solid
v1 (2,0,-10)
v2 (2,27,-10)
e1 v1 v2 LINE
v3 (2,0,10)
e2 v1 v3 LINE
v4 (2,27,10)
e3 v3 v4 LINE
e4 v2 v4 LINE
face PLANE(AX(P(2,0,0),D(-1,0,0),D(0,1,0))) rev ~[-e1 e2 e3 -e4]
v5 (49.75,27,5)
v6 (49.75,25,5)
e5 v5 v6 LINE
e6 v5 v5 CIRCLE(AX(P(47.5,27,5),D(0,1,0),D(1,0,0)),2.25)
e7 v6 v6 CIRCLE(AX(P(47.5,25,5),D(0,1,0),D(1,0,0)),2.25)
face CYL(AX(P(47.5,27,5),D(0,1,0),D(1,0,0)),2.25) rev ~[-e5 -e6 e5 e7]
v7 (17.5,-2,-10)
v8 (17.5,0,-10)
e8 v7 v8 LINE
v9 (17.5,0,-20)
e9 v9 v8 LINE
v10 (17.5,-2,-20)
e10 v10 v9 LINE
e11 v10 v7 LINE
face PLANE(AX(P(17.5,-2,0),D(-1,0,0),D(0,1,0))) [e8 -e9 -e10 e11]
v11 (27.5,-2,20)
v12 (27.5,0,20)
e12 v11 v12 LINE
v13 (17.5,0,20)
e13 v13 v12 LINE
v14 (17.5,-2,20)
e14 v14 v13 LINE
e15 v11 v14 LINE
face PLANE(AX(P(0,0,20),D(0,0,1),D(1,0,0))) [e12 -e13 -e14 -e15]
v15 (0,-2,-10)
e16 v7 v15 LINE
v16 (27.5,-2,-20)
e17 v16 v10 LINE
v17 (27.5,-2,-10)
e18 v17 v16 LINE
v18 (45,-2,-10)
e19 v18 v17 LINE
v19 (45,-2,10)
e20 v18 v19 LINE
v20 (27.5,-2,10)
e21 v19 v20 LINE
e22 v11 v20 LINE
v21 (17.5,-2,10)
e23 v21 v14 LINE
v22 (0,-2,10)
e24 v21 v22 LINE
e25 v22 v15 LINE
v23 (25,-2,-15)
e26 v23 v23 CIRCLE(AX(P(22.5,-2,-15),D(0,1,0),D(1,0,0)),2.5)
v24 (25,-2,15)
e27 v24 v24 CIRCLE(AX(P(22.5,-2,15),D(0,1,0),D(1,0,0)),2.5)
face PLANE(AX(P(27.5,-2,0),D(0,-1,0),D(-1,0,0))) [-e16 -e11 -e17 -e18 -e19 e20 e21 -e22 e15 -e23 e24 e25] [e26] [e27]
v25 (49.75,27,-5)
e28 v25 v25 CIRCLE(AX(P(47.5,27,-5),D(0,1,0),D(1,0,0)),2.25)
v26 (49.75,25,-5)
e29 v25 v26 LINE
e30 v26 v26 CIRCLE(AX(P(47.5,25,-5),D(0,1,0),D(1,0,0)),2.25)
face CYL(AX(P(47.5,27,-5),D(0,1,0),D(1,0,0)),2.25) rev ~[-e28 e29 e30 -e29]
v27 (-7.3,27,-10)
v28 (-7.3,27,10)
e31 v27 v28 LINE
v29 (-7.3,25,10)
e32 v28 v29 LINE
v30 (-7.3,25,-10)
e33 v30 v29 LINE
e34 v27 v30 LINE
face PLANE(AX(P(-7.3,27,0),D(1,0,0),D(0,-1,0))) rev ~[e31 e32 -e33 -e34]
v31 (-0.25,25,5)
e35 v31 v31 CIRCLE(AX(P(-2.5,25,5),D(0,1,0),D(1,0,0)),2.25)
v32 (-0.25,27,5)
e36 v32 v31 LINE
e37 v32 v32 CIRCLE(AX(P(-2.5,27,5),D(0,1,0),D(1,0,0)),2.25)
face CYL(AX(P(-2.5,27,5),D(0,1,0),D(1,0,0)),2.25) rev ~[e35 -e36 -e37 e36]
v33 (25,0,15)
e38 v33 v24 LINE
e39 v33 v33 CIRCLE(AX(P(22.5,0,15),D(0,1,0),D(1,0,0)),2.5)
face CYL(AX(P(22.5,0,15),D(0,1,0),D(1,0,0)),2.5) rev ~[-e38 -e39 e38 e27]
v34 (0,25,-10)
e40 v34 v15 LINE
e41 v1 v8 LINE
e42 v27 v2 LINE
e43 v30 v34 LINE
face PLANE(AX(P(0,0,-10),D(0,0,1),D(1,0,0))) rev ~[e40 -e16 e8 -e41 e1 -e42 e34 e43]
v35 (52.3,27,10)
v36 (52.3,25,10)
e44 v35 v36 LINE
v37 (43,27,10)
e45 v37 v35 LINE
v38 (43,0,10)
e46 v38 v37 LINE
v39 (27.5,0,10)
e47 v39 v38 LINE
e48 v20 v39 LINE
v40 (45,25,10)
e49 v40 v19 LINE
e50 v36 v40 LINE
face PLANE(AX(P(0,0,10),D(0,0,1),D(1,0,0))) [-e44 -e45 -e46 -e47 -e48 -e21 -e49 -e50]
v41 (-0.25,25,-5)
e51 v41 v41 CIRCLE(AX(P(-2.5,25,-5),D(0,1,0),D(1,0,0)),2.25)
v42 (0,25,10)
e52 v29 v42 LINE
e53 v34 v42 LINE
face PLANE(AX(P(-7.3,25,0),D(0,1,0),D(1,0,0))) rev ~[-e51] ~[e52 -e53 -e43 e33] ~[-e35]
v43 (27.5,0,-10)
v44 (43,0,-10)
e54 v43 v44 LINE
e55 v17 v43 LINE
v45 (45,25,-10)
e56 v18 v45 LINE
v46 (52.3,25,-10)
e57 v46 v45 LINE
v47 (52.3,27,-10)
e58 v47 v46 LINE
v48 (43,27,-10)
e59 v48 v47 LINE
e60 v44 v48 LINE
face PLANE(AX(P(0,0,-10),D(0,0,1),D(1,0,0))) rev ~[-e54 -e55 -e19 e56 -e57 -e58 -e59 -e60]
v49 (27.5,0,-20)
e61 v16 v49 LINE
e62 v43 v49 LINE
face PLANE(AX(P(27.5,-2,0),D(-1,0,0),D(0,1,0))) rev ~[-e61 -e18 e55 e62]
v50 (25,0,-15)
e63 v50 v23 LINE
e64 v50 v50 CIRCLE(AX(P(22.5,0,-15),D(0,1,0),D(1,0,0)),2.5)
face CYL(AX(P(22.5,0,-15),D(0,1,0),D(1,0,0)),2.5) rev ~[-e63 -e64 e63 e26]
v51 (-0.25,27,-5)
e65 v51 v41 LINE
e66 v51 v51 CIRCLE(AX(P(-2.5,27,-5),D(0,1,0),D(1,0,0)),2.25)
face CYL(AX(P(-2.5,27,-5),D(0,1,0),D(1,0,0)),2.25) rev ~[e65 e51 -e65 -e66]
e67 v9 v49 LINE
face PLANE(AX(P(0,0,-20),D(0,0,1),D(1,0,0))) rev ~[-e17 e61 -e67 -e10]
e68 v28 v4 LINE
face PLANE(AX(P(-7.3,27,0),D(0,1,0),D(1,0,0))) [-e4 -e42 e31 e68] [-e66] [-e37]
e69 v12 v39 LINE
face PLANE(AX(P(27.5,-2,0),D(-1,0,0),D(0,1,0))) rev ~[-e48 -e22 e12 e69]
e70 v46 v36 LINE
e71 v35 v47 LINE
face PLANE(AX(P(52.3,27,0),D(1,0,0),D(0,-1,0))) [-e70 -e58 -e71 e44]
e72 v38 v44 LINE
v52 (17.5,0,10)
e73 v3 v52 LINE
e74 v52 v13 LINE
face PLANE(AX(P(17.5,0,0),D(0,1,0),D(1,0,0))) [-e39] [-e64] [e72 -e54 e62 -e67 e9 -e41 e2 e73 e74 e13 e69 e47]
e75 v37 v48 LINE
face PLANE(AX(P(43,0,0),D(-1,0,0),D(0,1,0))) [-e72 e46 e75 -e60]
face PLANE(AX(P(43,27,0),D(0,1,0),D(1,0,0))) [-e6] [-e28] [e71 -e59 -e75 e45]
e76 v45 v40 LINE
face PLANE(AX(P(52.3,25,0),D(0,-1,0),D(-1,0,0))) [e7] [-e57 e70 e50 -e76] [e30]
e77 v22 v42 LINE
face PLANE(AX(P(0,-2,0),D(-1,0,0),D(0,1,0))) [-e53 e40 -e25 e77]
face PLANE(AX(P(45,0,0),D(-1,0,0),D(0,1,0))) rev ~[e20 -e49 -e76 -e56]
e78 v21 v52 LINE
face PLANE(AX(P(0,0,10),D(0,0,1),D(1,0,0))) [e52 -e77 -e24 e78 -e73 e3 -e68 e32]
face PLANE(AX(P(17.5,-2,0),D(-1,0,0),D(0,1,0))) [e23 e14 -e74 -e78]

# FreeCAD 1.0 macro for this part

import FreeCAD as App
import Part
import Sketcher

V = App.Vector
Q = App.Units.Quantity

doc = App.newDocument("Part")
body = doc.addObject("PartDesign::Body", "Body")
body.AllowCompound = True

# Sketch on XY plane
sketch1 = doc.addObject("Sketcher::SketchObject", "Sketch")
body.addObject(sketch1)
sketch1.AttachmentSupport = (doc.XY_Plane, [""])
sketch1.MapMode = "FlatFace"
sketch1.addGeometry(Part.LineSegment(V(17.5, 0, 0), V(2, 0, 0)), False)
sketch1.addGeometry(Part.LineSegment(V(2, 0, 0), V(2, 27, 0)), False)
sketch1.addGeometry(Part.LineSegment(V(2, 27, 0), V(-7.3, 27, 0)), False)
sketch1.addGeometry(Part.LineSegment(V(-7.3, 27, 0), V(-7.3, 25, 0)), False)
sketch1.addGeometry(Part.LineSegment(V(-7.3, 25, 0), V(0, 25, 0)), False)
sketch1.addGeometry(Part.LineSegment(V(0, 25, 0), V(0, -2, 0)), False)
sketch1.addGeometry(Part.LineSegment(V(0, -2, 0), V(17.5, -2, 0)), False)
sketch1.addGeometry(Part.LineSegment(V(17.5, -2, 0), V(17.5, 0, 0)), False)
sketch1.addGeometry(Part.LineSegment(V(43, 0, 0), V(27.5, 0, 0)), False)
sketch1.addGeometry(Part.LineSegment(V(27.5, 0, 0), V(27.5, -2, 0)), False)
sketch1.addGeometry(Part.LineSegment(V(27.5, -2, 0), V(45, -2, 0)), False)
sketch1.addGeometry(Part.LineSegment(V(45, -2, 0), V(45, 25, 0)), False)
sketch1.addGeometry(Part.LineSegment(V(45, 25, 0), V(52.3, 25, 0)), False)
sketch1.addGeometry(Part.LineSegment(V(52.3, 25, 0), V(52.3, 27, 0)), False)
sketch1.addGeometry(Part.LineSegment(V(52.3, 27, 0), V(43, 27, 0)), False)
sketch1.addGeometry(Part.LineSegment(V(43, 27, 0), V(43, 0, 0)), False)
sketch1.addConstraint(Sketcher.Constraint("Coincident", 0, 2, 1, 1))
sketch1.addConstraint(Sketcher.Constraint("Coincident", 1, 2, 2, 1))
sketch1.addConstraint(Sketcher.Constraint("Coincident", 2, 2, 3, 1))
sketch1.addConstraint(Sketcher.Constraint("Coincident", 3, 2, 4, 1))
sketch1.addConstraint(Sketcher.Constraint("Coincident", 4, 2, 5, 1))
sketch1.addConstraint(Sketcher.Constraint("Coincident", 5, 2, 6, 1))
sketch1.addConstraint(Sketcher.Constraint("Coincident", 6, 2, 7, 1))
sketch1.addConstraint(Sketcher.Constraint("Coincident", 7, 2, 0, 1))
sketch1.addConstraint(Sketcher.Constraint("Coincident", 8, 2, 9, 1))
sketch1.addConstraint(Sketcher.Constraint("Coincident", 9, 2, 10, 1))
sketch1.addConstraint(Sketcher.Constraint("Coincident", 10, 2, 11, 1))
sketch1.addConstraint(Sketcher.Constraint("Coincident", 11, 2, 12, 1))
sketch1.addConstraint(Sketcher.Constraint("Coincident", 12, 2, 13, 1))
sketch1.addConstraint(Sketcher.Constraint("Coincident", 13, 2, 14, 1))
sketch1.addConstraint(Sketcher.Constraint("Coincident", 14, 2, 15, 1))
sketch1.addConstraint(Sketcher.Constraint("Coincident", 15, 2, 8, 1))
sketch1.addConstraint(Sketcher.Constraint("Horizontal", 0))
sketch1.addConstraint(Sketcher.Constraint("Vertical", 1))
sketch1.addConstraint(Sketcher.Constraint("Horizontal", 2))
sketch1.addConstraint(Sketcher.Constraint("Vertical", 3))
sketch1.addConstraint(Sketcher.Constraint("Horizontal", 4))
sketch1.addConstraint(Sketcher.Constraint("Vertical", 5))
sketch1.addConstraint(Sketcher.Constraint("Horizontal", 6))
sketch1.addConstraint(Sketcher.Constraint("Vertical", 7))
sketch1.addConstraint(Sketcher.Constraint("Horizontal", 8))
sketch1.addConstraint(Sketcher.Constraint("Vertical", 9))
sketch1.addConstraint(Sketcher.Constraint("Horizontal", 10))
sketch1.addConstraint(Sketcher.Constraint("Vertical", 11))
sketch1.addConstraint(Sketcher.Constraint("Horizontal", 12))
sketch1.addConstraint(Sketcher.Constraint("Vertical", 13))
sketch1.addConstraint(Sketcher.Constraint("Horizontal", 14))
sketch1.addConstraint(Sketcher.Constraint("Vertical", 15))
sketch1.addConstraint(Sketcher.Constraint("PointOnObject", 0, 2, -1))
sketch1.addConstraint(Sketcher.Constraint("PointOnObject", 4, 2, -2))
sketch1.addConstraint(Sketcher.Constraint("PointOnObject", 8, 2, -1))
sketch1.addConstraint(Sketcher.Constraint("Horizontal", 6, 2, 9, 2))
sketch1.addConstraint(Sketcher.Constraint("Horizontal", 4, 2, 11, 2))
sketch1.addConstraint(Sketcher.Constraint("Horizontal", 2, 2, 13, 2))
sketch1.addConstraint(Sketcher.Constraint("Equal", 0, 8))
sketch1.addConstraint(Sketcher.Constraint("Equal", 6, 10))
sketch1.addConstraint(Sketcher.Constraint("Equal", 4, 12))
sketch1.addConstraint(Sketcher.Constraint("Equal", 1, 5))
sketch1.addConstraint(Sketcher.Constraint("DistanceY", 1, 1, 1, 2, Q("27 mm")))
sketch1.addConstraint(Sketcher.Constraint("DistanceY", 3, 2, 3, 1, Q("2 mm")))
sketch1.addConstraint(Sketcher.Constraint("DistanceX", 2, 2, 2, 1, Q("9.3 mm")))
sketch1.addConstraint(Sketcher.Constraint("DistanceX", -1, 1, 0, 2, Q("2 mm")))
sketch1.addConstraint(Sketcher.Constraint("DistanceX", -1, 1, 10, 2, Q("45 mm")))
sketch1.addConstraint(Sketcher.Constraint("DistanceX", 7, 2, 8, 2, Q("10 mm")))
pad1 = doc.addObject("PartDesign::Pad", "Pad")
body.addObject(pad1)
pad1.Profile = sketch1
pad1.Length = 20
pad1.Midplane = True

# Sketch on XZ plane
sketch2 = doc.addObject("Sketcher::SketchObject", "Sketch001")
body.addObject(sketch2)
sketch2.AttachmentSupport = (doc.XZ_Plane, [""])
sketch2.MapMode = "FlatFace"
sketch2.AttachmentOffset = App.Placement(V(0, 0, -27), App.Rotation())
sketch2.addGeometry(Part.Circle(V(-2.5, -5, 0), V(0, 0, 1), 2.2), False)
sketch2.addGeometry(Part.Circle(V(-2.5, 5, 0), V(0, 0, 1), 2.2), False)
sketch2.addGeometry(Part.Circle(V(47.5, -5, 0), V(0, 0, 1), 2.2), False)
sketch2.addGeometry(Part.Circle(V(47.5, 5, 0), V(0, 0, 1), 2.2), False)
sketch2.addConstraint(Sketcher.Constraint("Equal", 0, 1))
sketch2.addConstraint(Sketcher.Constraint("Equal", 1, 2))
sketch2.addConstraint(Sketcher.Constraint("Equal", 2, 3))
sketch2.addConstraint(Sketcher.Constraint("Symmetric", 0, 3, 1, 3, -1))
sketch2.addConstraint(Sketcher.Constraint("Symmetric", 2, 3, 3, 3, -1))
sketch2.addConstraint(Sketcher.Constraint("Horizontal", 0, 3, 2, 3))
sketch2.addConstraint(Sketcher.Constraint("Diameter", 0, Q("4.5 mm")))
sketch2.addConstraint(Sketcher.Constraint("DistanceY", 0, 3, -1, 1, Q("5 mm")))
sketch2.addConstraint(Sketcher.Constraint("DistanceX", 0, 3, 2, 3, Q("50 mm")))
sketch2.addConstraint(Sketcher.Constraint("DistanceX", 0, 3, -1, 1, Q("2.5 mm")))
pocket1 = doc.addObject("PartDesign::Pocket", "Pocket")
body.addObject(pocket1)
pocket1.Profile = sketch2
pocket1.Type = "ThroughAll"
pocket1.Reversed = True

# Sketch on XY plane
sketch3 = doc.addObject("Sketcher::SketchObject", "Sketch002")
body.addObject(sketch3)
sketch3.AttachmentSupport = (doc.XY_Plane, [""])
sketch3.MapMode = "FlatFace"
sketch3.addGeometry(Part.LineSegment(V(27.5, 0, 0), V(17.5, 0, 0)), False)
sketch3.addGeometry(Part.LineSegment(V(17.5, 0, 0), V(17.5, -2, 0)), False)
sketch3.addGeometry(Part.LineSegment(V(17.5, -2, 0), V(27.5, -2, 0)), False)
sketch3.addGeometry(Part.LineSegment(V(27.5, -2, 0), V(27.5, 0, 0)), False)
sketch3.addConstraint(Sketcher.Constraint("Coincident", 0, 2, 1, 1))
sketch3.addConstraint(Sketcher.Constraint("Coincident", 1, 2, 2, 1))
sketch3.addConstraint(Sketcher.Constraint("Coincident", 2, 2, 3, 1))
sketch3.addConstraint(Sketcher.Constraint("Coincident", 3, 2, 0, 1))
sketch3.addConstraint(Sketcher.Constraint("Horizontal", 0))
sketch3.addConstraint(Sketcher.Constraint("Vertical", 1))
sketch3.addConstraint(Sketcher.Constraint("Horizontal", 2))
sketch3.addConstraint(Sketcher.Constraint("Vertical", 3))
sketch3.addConstraint(Sketcher.Constraint("PointOnObject", 0, 2, -1))
sketch3.addConstraint(Sketcher.Constraint("DistanceX", 0, 2, 0, 1, Q("10 mm")))
sketch3.addConstraint(Sketcher.Constraint("DistanceY", 1, 2, 1, 1, Q("2 mm")))
sketch3.addConstraint(Sketcher.Constraint("DistanceX", -1, 1, 0, 2, Q("17.5 mm")))
pad2 = doc.addObject("PartDesign::Pad", "Pad001")
body.addObject(pad2)
pad2.Profile = sketch3
pad2.Length = 40
pad2.Midplane = True

# Sketch on XZ plane
sketch4 = doc.addObject("Sketcher::SketchObject", "Sketch003")
body.addObject(sketch4)
sketch4.AttachmentSupport = (doc.XZ_Plane, [""])
sketch4.MapMode = "FlatFace"
sketch4.addGeometry(Part.Circle(V(22.5, 15, 0), V(0, 0, 1), 2.5), False)
sketch4.addGeometry(Part.Circle(V(22.5, -15, 0), V(0, 0, 1), 2.5), False)
sketch4.addConstraint(Sketcher.Constraint("Equal", 0, 1))
sketch4.addConstraint(Sketcher.Constraint("Symmetric", 0, 3, 1, 3, -1))
sketch4.addConstraint(Sketcher.Constraint("Diameter", 0, Q("5 mm")))
sketch4.addConstraint(Sketcher.Constraint("DistanceY", -1, 1, 0, 3, Q("15 mm")))
sketch4.addConstraint(Sketcher.Constraint("DistanceX", -1, 1, 0, 3, Q("22.5 mm")))
pocket2 = doc.addObject("PartDesign::Pocket", "Pocket001")
body.addObject(pocket2)
pocket2.Profile = sketch4
pocket2.Length = 5
pocket2.Reversed = True

doc.recompute()
